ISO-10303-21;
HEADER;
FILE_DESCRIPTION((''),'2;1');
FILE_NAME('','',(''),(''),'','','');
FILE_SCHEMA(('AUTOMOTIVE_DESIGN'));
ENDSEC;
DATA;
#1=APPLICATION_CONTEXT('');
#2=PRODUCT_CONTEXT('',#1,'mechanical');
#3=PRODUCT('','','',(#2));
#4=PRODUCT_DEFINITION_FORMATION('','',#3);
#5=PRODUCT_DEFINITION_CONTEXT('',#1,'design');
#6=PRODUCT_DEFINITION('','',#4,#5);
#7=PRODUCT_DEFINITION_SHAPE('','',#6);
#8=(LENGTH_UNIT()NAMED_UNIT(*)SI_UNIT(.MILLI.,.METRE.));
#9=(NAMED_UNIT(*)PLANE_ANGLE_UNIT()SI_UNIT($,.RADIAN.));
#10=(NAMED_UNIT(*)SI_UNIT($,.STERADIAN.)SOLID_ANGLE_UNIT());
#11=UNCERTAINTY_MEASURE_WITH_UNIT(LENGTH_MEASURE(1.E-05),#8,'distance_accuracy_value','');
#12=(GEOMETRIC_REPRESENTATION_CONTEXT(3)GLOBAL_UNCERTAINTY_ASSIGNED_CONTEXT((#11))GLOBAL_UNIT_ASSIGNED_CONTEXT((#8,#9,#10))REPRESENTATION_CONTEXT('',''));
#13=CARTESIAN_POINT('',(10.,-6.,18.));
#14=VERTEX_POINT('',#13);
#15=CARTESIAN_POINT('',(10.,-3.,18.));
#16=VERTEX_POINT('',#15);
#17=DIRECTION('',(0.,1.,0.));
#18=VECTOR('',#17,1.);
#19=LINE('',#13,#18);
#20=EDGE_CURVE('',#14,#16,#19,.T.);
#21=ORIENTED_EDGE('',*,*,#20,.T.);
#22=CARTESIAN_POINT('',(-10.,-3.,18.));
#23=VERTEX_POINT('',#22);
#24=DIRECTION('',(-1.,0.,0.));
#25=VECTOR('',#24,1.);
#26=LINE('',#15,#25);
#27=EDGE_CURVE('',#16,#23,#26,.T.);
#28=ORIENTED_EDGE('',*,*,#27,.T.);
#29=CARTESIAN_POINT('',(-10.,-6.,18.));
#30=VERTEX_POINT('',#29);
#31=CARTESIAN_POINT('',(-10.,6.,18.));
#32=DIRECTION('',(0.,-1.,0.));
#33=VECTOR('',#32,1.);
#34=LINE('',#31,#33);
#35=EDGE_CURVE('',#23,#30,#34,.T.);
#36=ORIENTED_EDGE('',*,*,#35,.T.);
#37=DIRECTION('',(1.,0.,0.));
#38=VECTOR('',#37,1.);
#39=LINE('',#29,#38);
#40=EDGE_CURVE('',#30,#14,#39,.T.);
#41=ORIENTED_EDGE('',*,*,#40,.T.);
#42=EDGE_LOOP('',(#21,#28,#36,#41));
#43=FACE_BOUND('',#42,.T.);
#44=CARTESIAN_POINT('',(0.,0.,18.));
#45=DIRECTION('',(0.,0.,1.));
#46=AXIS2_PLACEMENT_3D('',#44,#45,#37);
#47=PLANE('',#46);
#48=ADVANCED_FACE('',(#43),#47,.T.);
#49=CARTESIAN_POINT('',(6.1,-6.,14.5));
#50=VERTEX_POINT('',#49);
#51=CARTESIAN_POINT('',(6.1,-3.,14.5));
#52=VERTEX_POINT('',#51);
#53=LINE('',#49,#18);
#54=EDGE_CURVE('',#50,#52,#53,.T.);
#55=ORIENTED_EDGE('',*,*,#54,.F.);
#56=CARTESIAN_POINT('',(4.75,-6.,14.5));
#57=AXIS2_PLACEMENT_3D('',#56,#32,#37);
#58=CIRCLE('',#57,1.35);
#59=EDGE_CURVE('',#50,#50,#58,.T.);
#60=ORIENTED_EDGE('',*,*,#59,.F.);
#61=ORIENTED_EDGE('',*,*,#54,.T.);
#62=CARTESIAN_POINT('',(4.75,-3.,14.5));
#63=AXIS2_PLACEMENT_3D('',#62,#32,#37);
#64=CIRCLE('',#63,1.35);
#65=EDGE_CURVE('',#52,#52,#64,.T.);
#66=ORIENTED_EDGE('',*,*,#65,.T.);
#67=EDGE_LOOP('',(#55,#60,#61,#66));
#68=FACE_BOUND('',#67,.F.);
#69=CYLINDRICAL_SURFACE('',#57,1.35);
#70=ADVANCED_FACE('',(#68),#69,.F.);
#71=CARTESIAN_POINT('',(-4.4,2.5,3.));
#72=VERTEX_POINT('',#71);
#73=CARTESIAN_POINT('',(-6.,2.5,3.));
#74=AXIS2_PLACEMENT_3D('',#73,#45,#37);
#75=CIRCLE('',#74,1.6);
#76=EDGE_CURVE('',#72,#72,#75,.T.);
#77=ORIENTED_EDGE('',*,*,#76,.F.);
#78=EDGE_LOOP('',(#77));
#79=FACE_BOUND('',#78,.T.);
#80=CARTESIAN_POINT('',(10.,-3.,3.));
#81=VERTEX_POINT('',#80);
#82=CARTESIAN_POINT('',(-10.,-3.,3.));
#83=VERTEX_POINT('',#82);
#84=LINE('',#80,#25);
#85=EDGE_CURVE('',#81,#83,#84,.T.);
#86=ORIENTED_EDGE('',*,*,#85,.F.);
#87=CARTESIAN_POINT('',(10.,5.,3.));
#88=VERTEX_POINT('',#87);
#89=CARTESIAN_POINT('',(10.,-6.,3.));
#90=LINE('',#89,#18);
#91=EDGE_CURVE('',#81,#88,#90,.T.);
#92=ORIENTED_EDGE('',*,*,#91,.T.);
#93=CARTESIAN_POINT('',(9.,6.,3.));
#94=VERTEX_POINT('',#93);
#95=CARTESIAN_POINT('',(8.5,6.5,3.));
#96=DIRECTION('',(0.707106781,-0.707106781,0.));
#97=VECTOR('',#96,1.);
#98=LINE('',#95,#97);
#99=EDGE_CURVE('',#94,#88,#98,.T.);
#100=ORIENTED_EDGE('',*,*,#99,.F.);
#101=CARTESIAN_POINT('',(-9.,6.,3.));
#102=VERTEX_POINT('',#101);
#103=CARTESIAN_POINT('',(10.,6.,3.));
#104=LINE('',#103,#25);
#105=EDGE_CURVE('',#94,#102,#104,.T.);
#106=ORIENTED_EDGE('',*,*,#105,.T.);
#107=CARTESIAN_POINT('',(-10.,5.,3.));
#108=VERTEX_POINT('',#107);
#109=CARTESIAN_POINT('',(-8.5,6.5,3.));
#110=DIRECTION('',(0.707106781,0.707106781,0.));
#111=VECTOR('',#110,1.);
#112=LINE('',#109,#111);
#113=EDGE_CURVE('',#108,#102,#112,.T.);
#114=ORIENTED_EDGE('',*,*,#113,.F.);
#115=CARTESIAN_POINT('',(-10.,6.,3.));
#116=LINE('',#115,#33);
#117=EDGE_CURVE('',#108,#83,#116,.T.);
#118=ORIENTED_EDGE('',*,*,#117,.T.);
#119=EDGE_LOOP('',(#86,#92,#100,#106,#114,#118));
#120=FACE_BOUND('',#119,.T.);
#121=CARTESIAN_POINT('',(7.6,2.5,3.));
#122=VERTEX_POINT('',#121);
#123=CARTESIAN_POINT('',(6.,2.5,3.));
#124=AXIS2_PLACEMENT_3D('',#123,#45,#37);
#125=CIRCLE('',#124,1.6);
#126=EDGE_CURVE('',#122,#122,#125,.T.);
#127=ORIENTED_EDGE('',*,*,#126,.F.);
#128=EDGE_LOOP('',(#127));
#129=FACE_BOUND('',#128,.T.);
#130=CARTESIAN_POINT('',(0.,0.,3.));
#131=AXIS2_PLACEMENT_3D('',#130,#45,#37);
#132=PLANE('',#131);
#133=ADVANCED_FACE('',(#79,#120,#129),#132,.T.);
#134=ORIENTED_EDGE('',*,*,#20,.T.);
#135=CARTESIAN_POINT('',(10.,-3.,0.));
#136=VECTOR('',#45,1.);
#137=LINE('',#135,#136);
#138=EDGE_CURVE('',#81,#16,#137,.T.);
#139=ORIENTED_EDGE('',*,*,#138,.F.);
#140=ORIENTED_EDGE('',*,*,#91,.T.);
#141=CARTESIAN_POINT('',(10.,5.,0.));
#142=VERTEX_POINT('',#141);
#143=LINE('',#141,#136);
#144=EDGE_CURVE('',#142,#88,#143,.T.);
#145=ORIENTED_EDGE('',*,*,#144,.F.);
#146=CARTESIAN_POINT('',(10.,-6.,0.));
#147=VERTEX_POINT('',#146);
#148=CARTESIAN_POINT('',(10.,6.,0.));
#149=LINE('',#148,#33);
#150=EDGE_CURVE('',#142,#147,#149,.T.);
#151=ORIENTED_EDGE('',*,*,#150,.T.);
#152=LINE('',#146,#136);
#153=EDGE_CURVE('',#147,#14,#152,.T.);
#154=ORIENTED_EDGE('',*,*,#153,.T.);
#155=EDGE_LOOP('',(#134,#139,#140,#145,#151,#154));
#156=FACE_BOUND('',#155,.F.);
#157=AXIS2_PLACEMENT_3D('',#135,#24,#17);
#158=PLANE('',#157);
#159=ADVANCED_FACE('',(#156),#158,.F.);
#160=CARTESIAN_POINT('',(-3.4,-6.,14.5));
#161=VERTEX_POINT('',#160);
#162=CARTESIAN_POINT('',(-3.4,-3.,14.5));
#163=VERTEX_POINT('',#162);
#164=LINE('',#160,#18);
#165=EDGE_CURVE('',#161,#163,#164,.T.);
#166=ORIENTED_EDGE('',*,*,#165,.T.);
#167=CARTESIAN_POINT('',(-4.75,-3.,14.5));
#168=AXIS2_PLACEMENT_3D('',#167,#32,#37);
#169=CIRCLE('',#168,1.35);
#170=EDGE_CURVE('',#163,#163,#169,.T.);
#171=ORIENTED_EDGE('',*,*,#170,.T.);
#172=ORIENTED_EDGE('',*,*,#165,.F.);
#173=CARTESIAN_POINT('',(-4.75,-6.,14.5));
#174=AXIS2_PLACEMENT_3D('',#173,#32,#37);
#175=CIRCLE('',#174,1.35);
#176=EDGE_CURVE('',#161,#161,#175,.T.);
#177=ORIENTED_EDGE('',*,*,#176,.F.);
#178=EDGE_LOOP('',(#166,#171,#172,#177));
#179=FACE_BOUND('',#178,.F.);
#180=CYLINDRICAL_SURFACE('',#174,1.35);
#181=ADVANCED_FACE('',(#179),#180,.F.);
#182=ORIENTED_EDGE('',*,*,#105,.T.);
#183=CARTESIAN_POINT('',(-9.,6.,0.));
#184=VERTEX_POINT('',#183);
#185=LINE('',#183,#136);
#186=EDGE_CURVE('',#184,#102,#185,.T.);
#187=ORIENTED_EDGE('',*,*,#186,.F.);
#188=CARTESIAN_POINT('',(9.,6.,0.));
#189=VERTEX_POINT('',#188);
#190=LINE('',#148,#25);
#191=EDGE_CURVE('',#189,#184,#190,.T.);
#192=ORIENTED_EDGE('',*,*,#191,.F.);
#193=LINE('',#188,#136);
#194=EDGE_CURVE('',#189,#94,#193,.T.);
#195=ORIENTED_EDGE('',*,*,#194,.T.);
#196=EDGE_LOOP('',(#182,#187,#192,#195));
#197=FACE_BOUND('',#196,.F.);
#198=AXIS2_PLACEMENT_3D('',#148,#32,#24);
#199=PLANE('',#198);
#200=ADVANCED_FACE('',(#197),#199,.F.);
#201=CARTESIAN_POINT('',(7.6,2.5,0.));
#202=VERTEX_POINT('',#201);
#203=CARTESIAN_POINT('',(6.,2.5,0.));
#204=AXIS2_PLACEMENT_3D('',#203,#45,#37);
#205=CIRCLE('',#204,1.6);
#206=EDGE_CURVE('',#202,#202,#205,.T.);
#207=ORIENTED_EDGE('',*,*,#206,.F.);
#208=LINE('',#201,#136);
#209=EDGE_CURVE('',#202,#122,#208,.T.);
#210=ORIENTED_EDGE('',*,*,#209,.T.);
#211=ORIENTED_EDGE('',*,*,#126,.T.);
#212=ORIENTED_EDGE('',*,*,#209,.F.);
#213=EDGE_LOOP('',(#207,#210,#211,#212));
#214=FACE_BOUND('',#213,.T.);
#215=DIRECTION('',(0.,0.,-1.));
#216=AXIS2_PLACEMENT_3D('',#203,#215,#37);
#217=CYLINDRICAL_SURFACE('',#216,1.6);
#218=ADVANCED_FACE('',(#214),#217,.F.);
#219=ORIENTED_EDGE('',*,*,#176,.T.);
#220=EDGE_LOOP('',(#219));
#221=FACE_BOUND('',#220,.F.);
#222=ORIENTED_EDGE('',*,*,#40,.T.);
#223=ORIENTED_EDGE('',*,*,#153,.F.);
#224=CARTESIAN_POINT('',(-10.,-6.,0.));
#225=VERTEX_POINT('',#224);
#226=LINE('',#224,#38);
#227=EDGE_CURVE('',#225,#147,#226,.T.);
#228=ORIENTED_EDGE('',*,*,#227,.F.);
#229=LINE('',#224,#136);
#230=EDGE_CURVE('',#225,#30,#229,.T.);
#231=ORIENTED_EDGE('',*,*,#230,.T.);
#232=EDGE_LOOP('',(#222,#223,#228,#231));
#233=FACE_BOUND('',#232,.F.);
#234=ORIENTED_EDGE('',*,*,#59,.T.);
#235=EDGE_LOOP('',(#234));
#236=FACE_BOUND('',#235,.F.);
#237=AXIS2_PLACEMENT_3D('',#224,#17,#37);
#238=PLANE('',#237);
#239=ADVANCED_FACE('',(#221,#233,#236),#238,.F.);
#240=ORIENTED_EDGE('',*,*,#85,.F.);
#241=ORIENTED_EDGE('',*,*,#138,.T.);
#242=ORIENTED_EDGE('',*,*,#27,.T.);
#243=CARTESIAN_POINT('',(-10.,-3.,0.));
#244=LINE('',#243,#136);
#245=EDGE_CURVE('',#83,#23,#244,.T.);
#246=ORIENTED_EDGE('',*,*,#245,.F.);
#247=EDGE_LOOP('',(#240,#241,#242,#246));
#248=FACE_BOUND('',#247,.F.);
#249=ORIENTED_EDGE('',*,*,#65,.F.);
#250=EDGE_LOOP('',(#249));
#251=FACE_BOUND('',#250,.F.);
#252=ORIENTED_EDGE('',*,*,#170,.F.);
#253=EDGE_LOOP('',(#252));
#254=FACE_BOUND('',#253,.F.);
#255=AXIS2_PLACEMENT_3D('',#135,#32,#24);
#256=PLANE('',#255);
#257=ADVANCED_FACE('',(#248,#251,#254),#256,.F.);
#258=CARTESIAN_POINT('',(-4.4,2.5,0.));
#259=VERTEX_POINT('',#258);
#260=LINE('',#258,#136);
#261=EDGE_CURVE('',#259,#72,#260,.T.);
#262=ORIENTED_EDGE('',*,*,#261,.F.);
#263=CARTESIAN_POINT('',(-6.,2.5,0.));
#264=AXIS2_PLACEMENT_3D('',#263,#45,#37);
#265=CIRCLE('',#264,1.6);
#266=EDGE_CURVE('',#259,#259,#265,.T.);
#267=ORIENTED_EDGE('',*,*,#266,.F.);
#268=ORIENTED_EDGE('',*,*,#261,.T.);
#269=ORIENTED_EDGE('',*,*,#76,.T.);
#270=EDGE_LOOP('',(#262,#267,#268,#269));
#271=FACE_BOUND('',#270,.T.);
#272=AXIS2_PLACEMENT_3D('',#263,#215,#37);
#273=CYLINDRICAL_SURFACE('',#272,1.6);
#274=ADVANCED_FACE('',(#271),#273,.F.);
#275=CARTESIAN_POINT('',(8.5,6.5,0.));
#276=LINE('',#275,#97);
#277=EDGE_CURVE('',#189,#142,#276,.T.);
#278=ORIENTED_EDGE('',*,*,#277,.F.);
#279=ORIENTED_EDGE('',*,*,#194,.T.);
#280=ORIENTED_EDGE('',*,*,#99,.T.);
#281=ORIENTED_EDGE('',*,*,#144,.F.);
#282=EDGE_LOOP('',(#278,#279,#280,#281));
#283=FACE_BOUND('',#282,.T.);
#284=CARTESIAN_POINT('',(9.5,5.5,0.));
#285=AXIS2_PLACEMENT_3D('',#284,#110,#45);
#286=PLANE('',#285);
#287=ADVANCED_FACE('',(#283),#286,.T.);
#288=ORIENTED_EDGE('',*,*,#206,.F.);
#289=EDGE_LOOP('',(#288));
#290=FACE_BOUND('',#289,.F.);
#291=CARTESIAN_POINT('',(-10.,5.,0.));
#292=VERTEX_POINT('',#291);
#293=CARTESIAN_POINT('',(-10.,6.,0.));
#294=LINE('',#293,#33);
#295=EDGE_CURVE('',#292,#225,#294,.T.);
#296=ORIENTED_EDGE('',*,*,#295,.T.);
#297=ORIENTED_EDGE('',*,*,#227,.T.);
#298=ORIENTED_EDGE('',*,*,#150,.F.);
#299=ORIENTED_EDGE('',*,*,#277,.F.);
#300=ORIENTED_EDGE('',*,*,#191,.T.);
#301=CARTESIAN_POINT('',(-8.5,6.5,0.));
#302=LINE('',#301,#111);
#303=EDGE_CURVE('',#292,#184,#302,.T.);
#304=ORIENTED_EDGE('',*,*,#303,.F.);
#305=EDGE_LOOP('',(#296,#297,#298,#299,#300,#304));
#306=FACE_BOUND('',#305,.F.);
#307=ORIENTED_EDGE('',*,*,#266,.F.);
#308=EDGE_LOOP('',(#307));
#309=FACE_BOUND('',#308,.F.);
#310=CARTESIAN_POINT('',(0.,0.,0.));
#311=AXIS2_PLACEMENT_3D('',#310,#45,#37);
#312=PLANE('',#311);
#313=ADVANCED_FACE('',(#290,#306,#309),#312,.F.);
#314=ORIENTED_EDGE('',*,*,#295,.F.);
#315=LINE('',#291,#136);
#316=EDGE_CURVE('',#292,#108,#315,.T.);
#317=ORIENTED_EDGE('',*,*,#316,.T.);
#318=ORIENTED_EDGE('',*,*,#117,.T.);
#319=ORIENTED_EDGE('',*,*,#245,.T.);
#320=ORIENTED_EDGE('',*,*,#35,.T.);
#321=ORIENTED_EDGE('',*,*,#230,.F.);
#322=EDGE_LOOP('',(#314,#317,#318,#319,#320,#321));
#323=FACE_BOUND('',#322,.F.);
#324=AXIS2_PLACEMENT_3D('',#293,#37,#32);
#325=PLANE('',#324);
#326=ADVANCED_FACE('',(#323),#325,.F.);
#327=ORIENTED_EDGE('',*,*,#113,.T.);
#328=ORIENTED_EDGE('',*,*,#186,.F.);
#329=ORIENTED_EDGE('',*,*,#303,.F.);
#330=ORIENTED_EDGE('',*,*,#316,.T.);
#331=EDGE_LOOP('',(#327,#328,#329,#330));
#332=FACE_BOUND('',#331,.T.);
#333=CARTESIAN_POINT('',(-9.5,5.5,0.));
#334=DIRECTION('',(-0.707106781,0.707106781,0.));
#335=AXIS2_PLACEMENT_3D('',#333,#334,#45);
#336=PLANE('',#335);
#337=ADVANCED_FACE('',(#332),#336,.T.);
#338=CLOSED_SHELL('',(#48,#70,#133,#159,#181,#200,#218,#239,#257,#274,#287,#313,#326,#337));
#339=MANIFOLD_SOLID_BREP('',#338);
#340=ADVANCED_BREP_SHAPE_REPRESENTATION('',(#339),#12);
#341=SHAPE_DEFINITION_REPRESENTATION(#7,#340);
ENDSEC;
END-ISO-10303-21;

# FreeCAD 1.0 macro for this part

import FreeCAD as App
import Part
import Sketcher
from FreeCAD import Vector
Q = App.Units.Quantity


def edges_at(feature, points):
    """Names of the edges that pass closest to the given points."""
    edges = feature.Shape.Edges
    near = lambda p: min(range(len(edges)), key=lambda i: edges[i].distToShape(Part.Vertex(*p))[0])
    return sorted({f"Edge{near(p) + 1}" for p in points})


def add_polygon(sketch, points):
    """Adds a closed chain of lines whose ends are joined by coincident constraints."""
    first, n = sketch.GeometryCount, len(points)
    for a, b in zip(points, points[1:] + points[:1]):
        sketch.addGeometry(Part.LineSegment(App.Vector(*a, 0), App.Vector(*b, 0)), False)
    for i in range(n):
        sketch.addConstraint(Sketcher.Constraint("Coincident", first + i, 2, first + (i + 1) % n, 1))

doc = App.newDocument("Part")
body = doc.addObject("PartDesign::Body", "Body")

# Sketch on XY plane
sketch1 = body.newObject("Sketcher::SketchObject", "Sketch")
sketch1.AttachmentSupport = (doc.getObject("XY_Plane"), [""])
sketch1.MapMode = "FlatFace"
add_polygon(sketch1, [(-10, 6), (-10, -3), (10, -3), (10, 6)])  # lines 0-3
sketch1.addGeometry(Part.Circle(Vector(-6, 2.5, 0), Vector(0, 0, 1), 1.6), False)  # 4
sketch1.addGeometry(Part.Circle(Vector(6, 2.5, 0), Vector(0, 0, 1), 1.6), False)  # 5
sketch1.addConstraint(Sketcher.Constraint("Vertical", 0))
sketch1.addConstraint(Sketcher.Constraint("Horizontal", 1))
sketch1.addConstraint(Sketcher.Constraint("Vertical", 2))
sketch1.addConstraint(Sketcher.Constraint("Horizontal", 3))
sketch1.addConstraint(Sketcher.Constraint("Equal", 4, 5))
sketch1.addConstraint(Sketcher.Constraint("Symmetric", 4, 3, 5, 3, -2))
sketch1.addConstraint(Sketcher.Constraint("Diameter", 4, Q("3.2 mm")))
sketch1.addConstraint(Sketcher.Constraint("DistanceX", 1, 1, 1, 2, Q("20 mm")))
sketch1.addConstraint(Sketcher.Constraint("DistanceX", 4, 3, -1, 1, Q("6 mm")))
sketch1.addConstraint(Sketcher.Constraint("DistanceY", 0, 2, -1, 1, Q("3 mm")))
sketch1.addConstraint(Sketcher.Constraint("DistanceY", -1, 1, 2, 2, Q("6 mm")))
sketch1.addConstraint(Sketcher.Constraint("DistanceY", -1, 1, 4, 3, Q("2.5 mm")))
sketch1.addConstraint(Sketcher.Constraint("DistanceX", 0, 2, -1, 1, Q("10 mm")))
pad1 = body.newObject("PartDesign::Pad", "Pad")
pad1.Profile = sketch1
pad1.Length = 3

# Sketch on XY plane
sketch2 = body.newObject("Sketcher::SketchObject", "Sketch001")
sketch2.AttachmentSupport = (doc.getObject("XY_Plane"), [""])
sketch2.MapMode = "FlatFace"
add_polygon(sketch2, [(-10, -3), (-10, -6), (10, -6), (10, -3)])  # lines 0-3
sketch2.addConstraint(Sketcher.Constraint("Vertical", 0))
sketch2.addConstraint(Sketcher.Constraint("Horizontal", 1))
sketch2.addConstraint(Sketcher.Constraint("Vertical", 2))
sketch2.addConstraint(Sketcher.Constraint("Horizontal", 3))
sketch2.addConstraint(Sketcher.Constraint("DistanceX", 1, 1, 1, 2, Q("20 mm")))
sketch2.addConstraint(Sketcher.Constraint("DistanceY", 0, 2, 0, 1, Q("3 mm")))
sketch2.addConstraint(Sketcher.Constraint("DistanceY", 0, 2, -1, 1, Q("6 mm")))
sketch2.addConstraint(Sketcher.Constraint("DistanceX", 0, 2, -1, 1, Q("10 mm")))
pad2 = body.newObject("PartDesign::Pad", "Pad001")
pad2.Profile = sketch2
pad2.Length = 18

# Sketch on XZ plane
sketch3 = body.newObject("Sketcher::SketchObject", "Sketch002")
sketch3.AttachmentSupport = (doc.getObject("XZ_Plane"), [""])
sketch3.MapMode = "FlatFace"
sketch3.AttachmentOffset = App.Placement(Vector(0, 0, 6), App.Rotation())
sketch3.addGeometry(Part.Circle(Vector(-4.8, 14.5, 0), Vector(0, 0, 1), 1.4), False)
sketch3.addGeometry(Part.Circle(Vector(4.8, 14.5, 0), Vector(0, 0, 1), 1.4), False)
sketch3.addConstraint(Sketcher.Constraint("Equal", 0, 1))
sketch3.addConstraint(Sketcher.Constraint("Symmetric", 0, 3, 1, 3, -2))
sketch3.addConstraint(Sketcher.Constraint("Diameter", 0, Q("2.7 mm")))
sketch3.addConstraint(Sketcher.Constraint("DistanceX", 0, 3, 1, 3, Q("9.5 mm")))
sketch3.addConstraint(Sketcher.Constraint("DistanceY", -1, 1, 0, 3, Q("14.5 mm")))
pocket1 = body.newObject("PartDesign::Pocket", "Pocket")
pocket1.Profile = sketch3
pocket1.Length = 3
doc.recompute()

chamfer = body.newObject("PartDesign::Chamfer", "Chamfer")
chamfer.Base = (pocket1, edges_at(pocket1, [(10, 6, 1.5), (-10, 6, 1.5)]))
chamfer.Size = 1

doc.recompute()
